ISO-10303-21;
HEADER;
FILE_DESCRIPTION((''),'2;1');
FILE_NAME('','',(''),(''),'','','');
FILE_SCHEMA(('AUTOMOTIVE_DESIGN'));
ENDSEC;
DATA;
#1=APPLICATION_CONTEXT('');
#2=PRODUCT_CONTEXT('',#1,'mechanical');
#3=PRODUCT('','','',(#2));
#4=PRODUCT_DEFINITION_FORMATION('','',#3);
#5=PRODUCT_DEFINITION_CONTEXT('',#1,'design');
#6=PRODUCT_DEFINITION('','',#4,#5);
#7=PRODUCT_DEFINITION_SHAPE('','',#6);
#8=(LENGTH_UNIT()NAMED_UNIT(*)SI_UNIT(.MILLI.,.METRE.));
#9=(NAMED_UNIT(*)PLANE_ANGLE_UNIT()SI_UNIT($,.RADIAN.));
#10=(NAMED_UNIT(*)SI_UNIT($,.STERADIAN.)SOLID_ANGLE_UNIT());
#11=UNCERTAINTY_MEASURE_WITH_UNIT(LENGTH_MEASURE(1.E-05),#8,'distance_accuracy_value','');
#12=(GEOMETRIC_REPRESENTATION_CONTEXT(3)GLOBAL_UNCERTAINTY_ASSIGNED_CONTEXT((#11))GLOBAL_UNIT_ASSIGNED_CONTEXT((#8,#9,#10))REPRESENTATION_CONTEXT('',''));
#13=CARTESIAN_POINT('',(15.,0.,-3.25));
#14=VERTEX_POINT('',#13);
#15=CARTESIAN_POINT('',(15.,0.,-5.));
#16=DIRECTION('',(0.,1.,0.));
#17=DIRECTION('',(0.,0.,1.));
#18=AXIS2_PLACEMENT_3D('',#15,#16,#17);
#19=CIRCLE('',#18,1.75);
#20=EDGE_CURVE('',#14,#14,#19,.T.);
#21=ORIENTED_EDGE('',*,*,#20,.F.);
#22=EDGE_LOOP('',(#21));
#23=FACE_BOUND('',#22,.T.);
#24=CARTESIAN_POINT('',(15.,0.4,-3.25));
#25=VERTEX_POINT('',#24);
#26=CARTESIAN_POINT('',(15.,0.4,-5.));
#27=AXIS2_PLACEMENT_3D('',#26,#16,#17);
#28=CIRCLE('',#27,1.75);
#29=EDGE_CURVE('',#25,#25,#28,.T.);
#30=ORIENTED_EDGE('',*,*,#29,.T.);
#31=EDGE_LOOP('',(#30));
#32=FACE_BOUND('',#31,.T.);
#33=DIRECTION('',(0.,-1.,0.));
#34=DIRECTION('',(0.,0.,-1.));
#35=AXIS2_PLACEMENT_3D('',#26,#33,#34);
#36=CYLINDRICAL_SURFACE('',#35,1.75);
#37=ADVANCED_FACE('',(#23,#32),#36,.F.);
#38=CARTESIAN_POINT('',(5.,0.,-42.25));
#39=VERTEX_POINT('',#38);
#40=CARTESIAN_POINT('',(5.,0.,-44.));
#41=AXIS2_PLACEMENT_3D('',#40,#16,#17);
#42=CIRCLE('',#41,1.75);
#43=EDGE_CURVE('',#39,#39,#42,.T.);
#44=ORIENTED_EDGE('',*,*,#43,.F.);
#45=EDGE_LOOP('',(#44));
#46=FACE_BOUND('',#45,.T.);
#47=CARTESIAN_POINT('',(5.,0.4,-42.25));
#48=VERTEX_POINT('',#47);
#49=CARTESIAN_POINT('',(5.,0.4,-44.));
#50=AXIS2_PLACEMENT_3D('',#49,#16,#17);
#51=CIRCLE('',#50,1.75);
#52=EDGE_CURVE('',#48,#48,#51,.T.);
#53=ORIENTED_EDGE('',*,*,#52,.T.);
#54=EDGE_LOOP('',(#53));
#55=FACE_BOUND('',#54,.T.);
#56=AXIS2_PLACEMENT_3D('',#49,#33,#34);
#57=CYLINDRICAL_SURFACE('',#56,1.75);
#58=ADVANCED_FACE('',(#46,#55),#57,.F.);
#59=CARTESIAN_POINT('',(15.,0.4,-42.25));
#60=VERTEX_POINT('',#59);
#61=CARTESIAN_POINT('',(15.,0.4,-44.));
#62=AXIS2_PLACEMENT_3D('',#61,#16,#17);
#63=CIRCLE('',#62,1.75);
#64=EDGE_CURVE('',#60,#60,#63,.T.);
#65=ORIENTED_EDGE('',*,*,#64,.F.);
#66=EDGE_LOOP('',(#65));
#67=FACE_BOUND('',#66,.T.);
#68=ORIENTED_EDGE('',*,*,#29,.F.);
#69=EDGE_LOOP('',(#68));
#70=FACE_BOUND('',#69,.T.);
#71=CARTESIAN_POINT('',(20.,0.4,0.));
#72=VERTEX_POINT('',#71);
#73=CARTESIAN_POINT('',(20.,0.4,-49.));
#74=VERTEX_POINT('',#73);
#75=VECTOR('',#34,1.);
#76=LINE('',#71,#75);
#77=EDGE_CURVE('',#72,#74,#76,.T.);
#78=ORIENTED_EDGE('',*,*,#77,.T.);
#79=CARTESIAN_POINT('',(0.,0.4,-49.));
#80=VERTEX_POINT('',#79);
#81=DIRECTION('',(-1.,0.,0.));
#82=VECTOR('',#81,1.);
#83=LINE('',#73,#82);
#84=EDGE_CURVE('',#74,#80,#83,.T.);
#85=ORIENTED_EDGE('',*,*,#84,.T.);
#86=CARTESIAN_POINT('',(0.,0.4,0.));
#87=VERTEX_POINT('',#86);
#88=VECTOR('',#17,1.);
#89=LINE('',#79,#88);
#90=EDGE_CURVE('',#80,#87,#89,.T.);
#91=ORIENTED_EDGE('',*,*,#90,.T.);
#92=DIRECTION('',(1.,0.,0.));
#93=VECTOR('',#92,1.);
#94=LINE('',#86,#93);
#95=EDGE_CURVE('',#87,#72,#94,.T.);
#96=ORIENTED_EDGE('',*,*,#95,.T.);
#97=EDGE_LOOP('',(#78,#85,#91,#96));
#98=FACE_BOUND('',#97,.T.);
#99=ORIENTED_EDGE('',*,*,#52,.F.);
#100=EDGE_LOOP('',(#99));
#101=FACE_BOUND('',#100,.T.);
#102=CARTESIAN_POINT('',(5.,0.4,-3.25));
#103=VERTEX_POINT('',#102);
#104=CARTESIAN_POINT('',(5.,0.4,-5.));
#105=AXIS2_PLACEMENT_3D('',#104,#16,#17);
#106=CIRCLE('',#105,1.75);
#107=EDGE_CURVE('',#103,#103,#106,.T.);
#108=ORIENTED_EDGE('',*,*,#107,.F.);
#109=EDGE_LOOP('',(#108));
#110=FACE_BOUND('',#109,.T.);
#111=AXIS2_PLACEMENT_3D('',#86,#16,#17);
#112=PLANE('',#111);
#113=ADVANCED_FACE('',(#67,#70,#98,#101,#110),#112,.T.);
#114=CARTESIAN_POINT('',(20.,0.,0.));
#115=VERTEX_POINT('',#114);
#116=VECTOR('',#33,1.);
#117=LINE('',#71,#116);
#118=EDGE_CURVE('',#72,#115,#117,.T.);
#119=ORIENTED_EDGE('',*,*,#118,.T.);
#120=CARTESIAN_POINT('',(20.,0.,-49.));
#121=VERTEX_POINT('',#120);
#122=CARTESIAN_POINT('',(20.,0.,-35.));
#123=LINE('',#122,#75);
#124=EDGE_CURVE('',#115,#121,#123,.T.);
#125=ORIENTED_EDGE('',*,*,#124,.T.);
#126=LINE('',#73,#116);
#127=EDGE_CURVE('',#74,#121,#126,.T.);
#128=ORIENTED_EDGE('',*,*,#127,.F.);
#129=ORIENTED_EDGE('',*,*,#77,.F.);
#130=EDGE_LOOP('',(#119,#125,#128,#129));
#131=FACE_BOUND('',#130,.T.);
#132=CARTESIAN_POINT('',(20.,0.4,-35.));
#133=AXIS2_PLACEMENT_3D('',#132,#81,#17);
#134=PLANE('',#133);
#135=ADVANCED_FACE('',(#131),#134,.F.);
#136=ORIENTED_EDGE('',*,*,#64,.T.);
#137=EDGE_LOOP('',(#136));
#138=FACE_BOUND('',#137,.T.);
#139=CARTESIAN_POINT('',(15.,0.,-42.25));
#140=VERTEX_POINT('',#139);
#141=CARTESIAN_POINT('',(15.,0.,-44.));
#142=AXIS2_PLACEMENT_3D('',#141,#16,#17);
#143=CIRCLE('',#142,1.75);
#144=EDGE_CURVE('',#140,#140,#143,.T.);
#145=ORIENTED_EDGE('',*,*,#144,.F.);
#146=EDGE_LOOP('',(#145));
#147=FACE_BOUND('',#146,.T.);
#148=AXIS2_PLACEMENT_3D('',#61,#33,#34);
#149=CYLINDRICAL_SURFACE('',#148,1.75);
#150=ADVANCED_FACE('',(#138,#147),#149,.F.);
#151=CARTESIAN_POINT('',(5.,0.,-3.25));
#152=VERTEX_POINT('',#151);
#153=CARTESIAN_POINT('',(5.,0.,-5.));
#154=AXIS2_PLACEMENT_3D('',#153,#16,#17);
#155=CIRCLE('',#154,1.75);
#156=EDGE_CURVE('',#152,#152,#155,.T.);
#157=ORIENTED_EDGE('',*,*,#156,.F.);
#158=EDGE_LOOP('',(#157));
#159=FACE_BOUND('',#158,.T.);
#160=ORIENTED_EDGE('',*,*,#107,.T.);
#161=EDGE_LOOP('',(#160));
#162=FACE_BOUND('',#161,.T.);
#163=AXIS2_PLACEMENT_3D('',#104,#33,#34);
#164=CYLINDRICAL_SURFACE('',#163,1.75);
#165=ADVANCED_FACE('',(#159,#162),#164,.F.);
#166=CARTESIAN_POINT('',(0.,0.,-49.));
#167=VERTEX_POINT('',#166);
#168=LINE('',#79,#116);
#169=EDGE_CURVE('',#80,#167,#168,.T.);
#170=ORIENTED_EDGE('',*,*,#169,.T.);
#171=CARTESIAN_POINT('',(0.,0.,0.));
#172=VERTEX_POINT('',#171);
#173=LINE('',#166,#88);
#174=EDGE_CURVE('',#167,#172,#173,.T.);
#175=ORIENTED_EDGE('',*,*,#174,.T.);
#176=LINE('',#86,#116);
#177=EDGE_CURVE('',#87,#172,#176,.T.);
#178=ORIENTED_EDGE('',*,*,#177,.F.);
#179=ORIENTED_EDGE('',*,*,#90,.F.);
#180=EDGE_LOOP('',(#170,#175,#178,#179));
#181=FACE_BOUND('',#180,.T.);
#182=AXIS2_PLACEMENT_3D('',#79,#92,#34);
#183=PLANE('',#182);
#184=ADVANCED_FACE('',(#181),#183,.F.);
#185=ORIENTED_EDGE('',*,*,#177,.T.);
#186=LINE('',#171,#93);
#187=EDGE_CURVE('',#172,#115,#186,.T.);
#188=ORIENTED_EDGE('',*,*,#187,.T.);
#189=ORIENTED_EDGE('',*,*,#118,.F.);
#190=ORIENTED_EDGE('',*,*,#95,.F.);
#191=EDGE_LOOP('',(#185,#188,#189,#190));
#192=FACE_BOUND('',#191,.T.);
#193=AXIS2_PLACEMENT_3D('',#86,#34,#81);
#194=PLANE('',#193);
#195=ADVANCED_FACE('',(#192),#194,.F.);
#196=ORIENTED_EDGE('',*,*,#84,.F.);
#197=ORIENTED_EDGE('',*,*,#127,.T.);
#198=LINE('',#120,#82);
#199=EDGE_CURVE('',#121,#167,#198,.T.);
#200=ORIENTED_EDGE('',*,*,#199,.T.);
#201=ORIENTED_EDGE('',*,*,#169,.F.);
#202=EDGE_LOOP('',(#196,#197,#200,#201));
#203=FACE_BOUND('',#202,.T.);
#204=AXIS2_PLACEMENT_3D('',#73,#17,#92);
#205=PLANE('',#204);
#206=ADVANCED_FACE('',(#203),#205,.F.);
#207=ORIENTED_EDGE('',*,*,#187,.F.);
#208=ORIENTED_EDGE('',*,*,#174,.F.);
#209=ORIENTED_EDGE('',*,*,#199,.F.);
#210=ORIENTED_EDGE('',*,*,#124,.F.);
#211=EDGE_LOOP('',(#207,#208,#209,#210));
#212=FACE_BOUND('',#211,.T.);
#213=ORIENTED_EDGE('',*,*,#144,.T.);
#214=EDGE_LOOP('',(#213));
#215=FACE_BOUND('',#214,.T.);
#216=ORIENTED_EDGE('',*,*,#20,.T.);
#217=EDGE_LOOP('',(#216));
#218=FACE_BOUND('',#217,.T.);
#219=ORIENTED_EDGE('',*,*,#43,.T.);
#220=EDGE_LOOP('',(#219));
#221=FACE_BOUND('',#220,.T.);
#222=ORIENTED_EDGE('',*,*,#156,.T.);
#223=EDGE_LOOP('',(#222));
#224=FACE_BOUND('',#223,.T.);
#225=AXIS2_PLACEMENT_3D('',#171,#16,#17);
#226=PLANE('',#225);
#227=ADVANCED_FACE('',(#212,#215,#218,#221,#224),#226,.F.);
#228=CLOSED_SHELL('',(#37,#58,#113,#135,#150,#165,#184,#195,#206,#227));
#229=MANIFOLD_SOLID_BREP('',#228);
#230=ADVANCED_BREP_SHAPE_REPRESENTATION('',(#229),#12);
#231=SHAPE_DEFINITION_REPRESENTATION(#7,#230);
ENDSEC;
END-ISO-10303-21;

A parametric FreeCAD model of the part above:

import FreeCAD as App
import Part
import Sketcher

V = App.Vector
Q = App.Units.Quantity

doc = App.newDocument("Part")
params = doc.addObject("Spreadsheet::Sheet", "Params")
for row, (alias, value) in enumerate([
    ("sketch1_diameter", "3.5 mm"),
    ("sketch1_width", "20 mm"),
    ("sketch1_height", "49 mm"),
    ("pad1_length", "0.4 mm"),
], start=1):
    params.set(f"A{row}", alias)
    params.set(f"B{row}", "=" + value)
    params.setAlias(f"B{row}", alias)

body = doc.addObject("PartDesign::Body", "Body")

# Sketch on XZ plane
sketch1 = body.newObject("Sketcher::SketchObject", "Sketch")
sketch1.AttachmentSupport = (doc.getObject("XZ_Plane"), [""])
sketch1.MapMode = "FlatFace"
sketch1.addGeometry(Part.LineSegment(V(0, 0, 0), V(20, 0, 0)), False)
sketch1.addGeometry(Part.LineSegment(V(20, 0, 0), V(20, -49, 0)), False)
sketch1.addGeometry(Part.LineSegment(V(20, -49, 0), V(0, -49, 0)), False)
sketch1.addGeometry(Part.LineSegment(V(0, -49, 0), V(0, 0, 0)), False)
sketch1.addGeometry(Part.Circle(V(5, -5, 0), V(0, 0, 1), 1.8), False)
sketch1.addGeometry(Part.Circle(V(15, -5, 0), V(0, 0, 1), 1.8), False)
sketch1.addGeometry(Part.Circle(V(5, -44, 0), V(0, 0, 1), 1.8), False)
sketch1.addGeometry(Part.Circle(V(15, -44, 0), V(0, 0, 1), 1.8), False)
sketch1.addConstraint(Sketcher.Constraint("Coincident", 0, 2, 1, 1))
sketch1.addConstraint(Sketcher.Constraint("Coincident", 1, 2, 2, 1))
sketch1.addConstraint(Sketcher.Constraint("Coincident", 2, 2, 3, 1))
sketch1.addConstraint(Sketcher.Constraint("Coincident", 3, 2, 0, 1))
sketch1.addConstraint(Sketcher.Constraint("Horizontal", 0))
sketch1.addConstraint(Sketcher.Constraint("Vertical", 1))
sketch1.addConstraint(Sketcher.Constraint("Horizontal", 2))
sketch1.addConstraint(Sketcher.Constraint("Vertical", 3))
sketch1.addConstraint(Sketcher.Constraint("Coincident", 3, 2, -1, 1))
sketch1.addConstraint(Sketcher.Constraint("Equal", 4, 5))
sketch1.addConstraint(Sketcher.Constraint("Equal", 5, 6))
sketch1.addConstraint(Sketcher.Constraint("Equal", 6, 7))
sketch1.addConstraint(Sketcher.Constraint("Horizontal", 4, 3, 5, 3))
sketch1.addConstraint(Sketcher.Constraint("Horizontal", 6, 3, 7, 3))
sketch1.addConstraint(Sketcher.Constraint("Vertical", 4, 3, 6, 3))
sketch1.addConstraint(Sketcher.Constraint("Vertical", 5, 3, 7, 3))
sketch1.addConstraint(Sketcher.Constraint("Diameter", 4, Q("3.5 mm")))
sketch1.addConstraint(Sketcher.Constraint("DistanceX", 0, 1, 0, 2, Q("20 mm")))
sketch1.addConstraint(Sketcher.Constraint("DistanceY", 1, 2, 1, 1, Q("49 mm")))
sketch1.addConstraint(Sketcher.Constraint("DistanceX", -1, 1, 4, 3, Q("5 mm")))
sketch1.addConstraint(Sketcher.Constraint("DistanceY", 4, 3, -1, 1, Q("5 mm")))
sketch1.addConstraint(Sketcher.Constraint("DistanceX", -1, 1, 5, 3, Q("15 mm")))
sketch1.addConstraint(Sketcher.Constraint("DistanceY", 6, 3, -1, 1, Q("44 mm")))
sketch1.setExpression("Constraints[16]", "Params.sketch1_diameter")
sketch1.setExpression("Constraints[17]", "Params.sketch1_width")
sketch1.setExpression("Constraints[18]", "Params.sketch1_height")
pad1 = body.newObject("PartDesign::Pad", "Pad")
pad1.Profile = sketch1
pad1.setExpression("Length", "Params.pad1_length")
pad1.Reversed = True

doc.recompute()
